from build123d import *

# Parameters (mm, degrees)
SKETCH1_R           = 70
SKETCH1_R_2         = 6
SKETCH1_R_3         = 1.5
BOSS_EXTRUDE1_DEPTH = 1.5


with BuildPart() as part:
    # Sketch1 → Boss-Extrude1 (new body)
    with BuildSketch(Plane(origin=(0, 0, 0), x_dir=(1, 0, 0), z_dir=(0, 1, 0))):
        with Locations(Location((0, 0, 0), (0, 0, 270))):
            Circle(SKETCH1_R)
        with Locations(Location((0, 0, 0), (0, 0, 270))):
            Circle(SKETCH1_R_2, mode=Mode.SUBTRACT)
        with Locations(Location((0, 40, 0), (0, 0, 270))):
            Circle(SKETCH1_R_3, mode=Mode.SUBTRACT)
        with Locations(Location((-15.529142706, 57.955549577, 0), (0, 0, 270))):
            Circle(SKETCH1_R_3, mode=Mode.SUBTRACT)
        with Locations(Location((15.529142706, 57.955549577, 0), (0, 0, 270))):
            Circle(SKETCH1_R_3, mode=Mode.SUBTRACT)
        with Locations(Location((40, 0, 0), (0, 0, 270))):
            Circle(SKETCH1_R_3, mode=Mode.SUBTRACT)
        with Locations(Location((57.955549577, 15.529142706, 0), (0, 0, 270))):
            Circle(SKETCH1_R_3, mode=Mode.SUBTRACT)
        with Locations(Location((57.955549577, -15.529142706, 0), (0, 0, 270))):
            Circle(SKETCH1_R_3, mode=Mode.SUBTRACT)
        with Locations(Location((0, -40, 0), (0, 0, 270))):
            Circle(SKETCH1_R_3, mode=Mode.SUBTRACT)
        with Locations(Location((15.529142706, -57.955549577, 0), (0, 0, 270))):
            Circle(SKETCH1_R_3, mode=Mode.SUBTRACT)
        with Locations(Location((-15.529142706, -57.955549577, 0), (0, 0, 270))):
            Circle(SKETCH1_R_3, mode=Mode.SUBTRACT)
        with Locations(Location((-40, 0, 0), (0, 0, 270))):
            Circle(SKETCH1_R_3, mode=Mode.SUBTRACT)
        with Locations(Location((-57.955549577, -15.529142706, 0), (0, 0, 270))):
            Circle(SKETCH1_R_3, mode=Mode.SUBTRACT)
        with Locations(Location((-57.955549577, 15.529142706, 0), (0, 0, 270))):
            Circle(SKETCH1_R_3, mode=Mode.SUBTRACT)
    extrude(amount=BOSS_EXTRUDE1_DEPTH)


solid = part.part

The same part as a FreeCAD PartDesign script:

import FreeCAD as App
import Part
import Sketcher

doc = App.newDocument("Part")
params = doc.addObject("Spreadsheet::Sheet", "Params")
for row, (alias, value) in enumerate([
    ("sketch1_diameter", "140 mm"),
    ("sketch1_diameter2", "3 mm"),
    ("sketch1_diameter3", "12 mm"),
    ("pad1_length", "1.5 mm"),
], start=1):
    params.set(f"A{row}", alias)
    params.set(f"B{row}", "=" + value)
    params.setAlias(f"B{row}", alias)

body = doc.addObject("PartDesign::Body", "Body")

sketch1 = doc.addObject("Sketcher::SketchObject", "Sketch")
body.addObject(sketch1)
sketch1.AttachmentSupport = (doc.XZ_Plane, [""])
sketch1.MapMode = "FlatFace"
sketch1.addGeometry(Part.Circle(App.Vector(0, 0, 0), App.Vector(0, 0, 1), 70), False)
sketch1.addGeometry(Part.Circle(App.Vector(-58, -15.5, 0), App.Vector(0, 0, 1), 1.5), False)
sketch1.addGeometry(Part.Circle(App.Vector(-15.5, -58, 0), App.Vector(0, 0, 1), 1.5), False)
sketch1.addGeometry(Part.Circle(App.Vector(0, -40, 0), App.Vector(0, 0, 1), 1.5), False)
sketch1.addGeometry(Part.Circle(App.Vector(0, 0, 0), App.Vector(0, 0, 1), 6), False)
sketch1.addGeometry(Part.Circle(App.Vector(-58, 15.5, 0), App.Vector(0, 0, 1), 1.5), False)
sketch1.addGeometry(Part.Circle(App.Vector(-40, 0, 0), App.Vector(0, 0, 1), 1.5), False)
sketch1.addGeometry(Part.Circle(App.Vector(-15.5, 58, 0), App.Vector(0, 0, 1), 1.5), False)
sketch1.addGeometry(Part.Circle(App.Vector(15.5, -58, 0), App.Vector(0, 0, 1), 1.5), False)
sketch1.addGeometry(Part.Circle(App.Vector(40, 0, 0), App.Vector(0, 0, 1), 1.5), False)
sketch1.addGeometry(Part.Circle(App.Vector(58, -15.5, 0), App.Vector(0, 0, 1), 1.5), False)
sketch1.addGeometry(Part.Circle(App.Vector(0, 40, 0), App.Vector(0, 0, 1), 1.5), False)
sketch1.addGeometry(Part.Circle(App.Vector(15.5, 58, 0), App.Vector(0, 0, 1), 1.5), False)
sketch1.addGeometry(Part.Circle(App.Vector(58, 15.5, 0), App.Vector(0, 0, 1), 1.5), False)
sketch1.addConstraint(Sketcher.Constraint("Coincident", 0, 3, -1, 1))
sketch1.addConstraint(Sketcher.Constraint("Coincident", 4, 3, -1, 1))
sketch1.addConstraint(Sketcher.Constraint("Equal", 1, 2))
sketch1.addConstraint(Sketcher.Constraint("Equal", 2, 3))
sketch1.addConstraint(Sketcher.Constraint("Equal", 3, 5))
sketch1.addConstraint(Sketcher.Constraint("Equal", 5, 6))
sketch1.addConstraint(Sketcher.Constraint("Equal", 6, 7))
sketch1.addConstraint(Sketcher.Constraint("Equal", 7, 8))
sketch1.addConstraint(Sketcher.Constraint("Equal", 8, 9))
sketch1.addConstraint(Sketcher.Constraint("Equal", 9, 10))
sketch1.addConstraint(Sketcher.Constraint("Equal", 10, 11))
sketch1.addConstraint(Sketcher.Constraint("Equal", 11, 12))
sketch1.addConstraint(Sketcher.Constraint("Equal", 12, 13))
sketch1.addConstraint(Sketcher.Constraint("Symmetric", 7, 3, 8, 3, -1, 1))
sketch1.addConstraint(Sketcher.Constraint("Symmetric", 6, 3, 9, 3, -1, 1))
sketch1.addConstraint(Sketcher.Constraint("Symmetric", 5, 3, 10, 3, -1, 1))
sketch1.addConstraint(Sketcher.Constraint("Symmetric", 3, 3, 11, 3, -1, 1))
sketch1.addConstraint(Sketcher.Constraint("Symmetric", 2, 3, 12, 3, -1, 1))
sketch1.addConstraint(Sketcher.Constraint("Symmetric", 1, 3, 13, 3, -1, 1))
sketch1.addConstraint(Sketcher.Constraint("Symmetric", 2, 3, 8, 3, -2))
sketch1.addConstraint(Sketcher.Constraint("Symmetric", 1, 3, 10, 3, -2))
sketch1.addConstraint(Sketcher.Constraint("PointOnObject", 3, 3, -2))
sketch1.addConstraint(Sketcher.Constraint("PointOnObject", 6, 3, -1))
sketch1.addConstraint(Sketcher.Constraint("Diameter", 0, 140.0))
sketch1.addConstraint(Sketcher.Constraint("Diameter", 1, 3.0))
sketch1.addConstraint(Sketcher.Constraint("Diameter", 4, 12.0))
sketch1.addConstraint(Sketcher.Constraint("DistanceY", 3, 3, -1, 1, 40.0))
sketch1.addConstraint(Sketcher.Constraint("DistanceX", 6, 3, -1, 1, 40.0))
sketch1.addConstraint(Sketcher.Constraint("DistanceX", 1, 3, -1, 1, 57.95555))
sketch1.addConstraint(Sketcher.Constraint("DistanceY", 2, 3, -1, 1, 57.95555))
sketch1.addConstraint(Sketcher.Constraint("DistanceY", 1, 3, -1, 1, 15.529143))
sketch1.addConstraint(Sketcher.Constraint("DistanceX", 2, 3, -1, 1, 15.529143))
sketch1.setExpression("Constraints[23]", "Params.sketch1_diameter")
sketch1.setExpression("Constraints[24]", "Params.sketch1_diameter2")
sketch1.setExpression("Constraints[25]", "Params.sketch1_diameter3")
pad1 = doc.addObject("PartDesign::Pad", "Pad")
body.addObject(pad1)
pad1.Profile = sketch1
pad1.setExpression("Length", "Params.pad1_length")
pad1.Reversed = True

doc.recompute()
